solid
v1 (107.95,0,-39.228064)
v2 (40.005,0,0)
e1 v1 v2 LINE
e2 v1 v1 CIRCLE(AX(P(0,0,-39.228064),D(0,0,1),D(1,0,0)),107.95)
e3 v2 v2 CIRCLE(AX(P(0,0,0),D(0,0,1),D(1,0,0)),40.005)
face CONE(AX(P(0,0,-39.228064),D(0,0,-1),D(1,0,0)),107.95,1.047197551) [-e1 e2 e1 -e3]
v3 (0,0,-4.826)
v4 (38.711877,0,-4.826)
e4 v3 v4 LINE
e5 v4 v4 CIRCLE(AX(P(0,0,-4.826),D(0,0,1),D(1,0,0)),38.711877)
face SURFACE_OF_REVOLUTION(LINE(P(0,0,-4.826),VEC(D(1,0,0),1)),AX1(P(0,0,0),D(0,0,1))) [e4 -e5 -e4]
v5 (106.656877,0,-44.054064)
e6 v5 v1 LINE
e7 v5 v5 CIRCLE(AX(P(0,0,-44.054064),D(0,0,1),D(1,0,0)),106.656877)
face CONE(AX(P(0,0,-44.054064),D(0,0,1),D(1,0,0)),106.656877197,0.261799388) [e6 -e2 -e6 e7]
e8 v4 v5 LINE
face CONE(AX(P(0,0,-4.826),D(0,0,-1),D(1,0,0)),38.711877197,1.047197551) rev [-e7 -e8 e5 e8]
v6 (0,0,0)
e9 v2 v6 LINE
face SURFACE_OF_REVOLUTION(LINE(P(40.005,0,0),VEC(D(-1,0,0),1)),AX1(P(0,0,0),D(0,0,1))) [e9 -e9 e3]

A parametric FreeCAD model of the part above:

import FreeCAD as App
import Part
import Sketcher

V = App.Vector
Q = App.Units.Quantity


def add_polygon(sketch, points):
    """Adds a closed chain of lines whose ends are joined by coincident constraints."""
    first, n = sketch.GeometryCount, len(points)
    for a, b in zip(points, points[1:] + points[:1]):
        sketch.addGeometry(Part.LineSegment(App.Vector(*a, 0), App.Vector(*b, 0)), False)
    for i in range(n):
        sketch.addConstraint(Sketcher.Constraint("Coincident", first + i, 2, first + (i + 1) % n, 1))

doc = App.newDocument("Part")
body = doc.addObject("PartDesign::Body", "Body")

# Sketch on XZ plane
sketch1 = body.newObject("Sketcher::SketchObject", "Sketch")
sketch1.AttachmentSupport = (doc.getObject("XZ_Plane"), [""])
sketch1.MapMode = "FlatFace"
add_polygon(sketch1, [(108, -39.2), (40, 0), (0, 0), (0, -4.8), (38.7, -4.8), (106.7, -44.1)])  # lines 0-5
sketch1.addConstraint(Sketcher.Constraint("Horizontal", 1))
sketch1.addConstraint(Sketcher.Constraint("Vertical", 2))
sketch1.addConstraint(Sketcher.Constraint("Horizontal", 3))
sketch1.addConstraint(Sketcher.Constraint("Coincident", 1, 2, -1, 1))
sketch1.addConstraint(Sketcher.Constraint("Parallel", 0, 4))
sketch1.addConstraint(Sketcher.Constraint("Equal", 0, 4))
sketch1.addConstraint(Sketcher.Constraint("Angle", 0, Q("150 deg")))
sketch1.addConstraint(Sketcher.Constraint("Angle", 5, Q("75 deg")))
sketch1.addConstraint(Sketcher.Constraint("DistanceY", 2, 2, 2, 1, Q("0.19 in")))
sketch1.addConstraint(Sketcher.Constraint("DistanceX", 1, 2, 1, 1, Q("1.575 in")))
sketch1.addConstraint(Sketcher.Constraint("DistanceX", -1, 1, 5, 2, Q("4.25 in")))

# Sketch on XY plane
sketch2 = body.newObject("Sketcher::SketchObject", "Sketch001")
sketch2.AttachmentSupport = (doc.getObject("XY_Plane"), [""])
sketch2.MapMode = "FlatFace"
sketch2.addGeometry(Part.Circle(V(0, 0, 0), V(0, 0, 1), 40), False)
sketch2.addConstraint(Sketcher.Constraint("Coincident", 0, 3, -1, 1))
sketch2.addConstraint(Sketcher.Constraint("Diameter", 0, Q("3.15 in")))
doc.recompute()

additivepipe = body.newObject("PartDesign::AdditivePipe", "AdditivePipe")
additivepipe.Profile = sketch1
additivepipe.Spine = (sketch2, ["Edge1"])

doc.recompute()
